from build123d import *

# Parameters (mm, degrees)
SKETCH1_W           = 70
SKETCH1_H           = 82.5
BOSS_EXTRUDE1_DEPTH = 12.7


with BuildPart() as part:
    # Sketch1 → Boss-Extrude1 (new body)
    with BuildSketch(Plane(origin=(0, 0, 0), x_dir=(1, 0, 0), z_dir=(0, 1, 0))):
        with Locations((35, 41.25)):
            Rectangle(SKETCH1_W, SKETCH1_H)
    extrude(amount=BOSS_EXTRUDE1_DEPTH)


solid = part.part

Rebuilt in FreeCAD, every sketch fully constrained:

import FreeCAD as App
import Part
import Sketcher
Q = App.Units.Quantity


def add_polygon(sketch, points):
    """Adds a closed chain of lines whose ends are joined by coincident constraints."""
    first, n = sketch.GeometryCount, len(points)
    for a, b in zip(points, points[1:] + points[:1]):
        sketch.addGeometry(Part.LineSegment(App.Vector(*a, 0), App.Vector(*b, 0)), False)
    for i in range(n):
        sketch.addConstraint(Sketcher.Constraint("Coincident", first + i, 2, first + (i + 1) % n, 1))

doc = App.newDocument("Part")
body = doc.addObject("PartDesign::Body", "Body")

# Sketch on XZ plane
sketch1 = body.newObject("Sketcher::SketchObject", "Sketch")
sketch1.AttachmentSupport = (doc.getObject("XZ_Plane"), [""])
sketch1.MapMode = "FlatFace"
add_polygon(sketch1, [(0, -82), (0, 0), (70, 0), (70, -82)])  # lines 0-3
sketch1.addConstraint(Sketcher.Constraint("Vertical", 0))
sketch1.addConstraint(Sketcher.Constraint("Horizontal", 1))
sketch1.addConstraint(Sketcher.Constraint("Vertical", 2))
sketch1.addConstraint(Sketcher.Constraint("Horizontal", 3))
sketch1.addConstraint(Sketcher.Constraint("Coincident", 0, 2, -1, 1))
sketch1.addConstraint(Sketcher.Constraint("DistanceX", 1, 1, 1, 2, Q("70 mm")))
sketch1.addConstraint(Sketcher.Constraint("DistanceY", 0, 1, 0, 2, Q("82.5 mm")))
pad1 = body.newObject("PartDesign::Pad", "Pad")
pad1.Profile = sketch1
pad1.Length = 12.7
pad1.Reversed = True

doc.recompute()
